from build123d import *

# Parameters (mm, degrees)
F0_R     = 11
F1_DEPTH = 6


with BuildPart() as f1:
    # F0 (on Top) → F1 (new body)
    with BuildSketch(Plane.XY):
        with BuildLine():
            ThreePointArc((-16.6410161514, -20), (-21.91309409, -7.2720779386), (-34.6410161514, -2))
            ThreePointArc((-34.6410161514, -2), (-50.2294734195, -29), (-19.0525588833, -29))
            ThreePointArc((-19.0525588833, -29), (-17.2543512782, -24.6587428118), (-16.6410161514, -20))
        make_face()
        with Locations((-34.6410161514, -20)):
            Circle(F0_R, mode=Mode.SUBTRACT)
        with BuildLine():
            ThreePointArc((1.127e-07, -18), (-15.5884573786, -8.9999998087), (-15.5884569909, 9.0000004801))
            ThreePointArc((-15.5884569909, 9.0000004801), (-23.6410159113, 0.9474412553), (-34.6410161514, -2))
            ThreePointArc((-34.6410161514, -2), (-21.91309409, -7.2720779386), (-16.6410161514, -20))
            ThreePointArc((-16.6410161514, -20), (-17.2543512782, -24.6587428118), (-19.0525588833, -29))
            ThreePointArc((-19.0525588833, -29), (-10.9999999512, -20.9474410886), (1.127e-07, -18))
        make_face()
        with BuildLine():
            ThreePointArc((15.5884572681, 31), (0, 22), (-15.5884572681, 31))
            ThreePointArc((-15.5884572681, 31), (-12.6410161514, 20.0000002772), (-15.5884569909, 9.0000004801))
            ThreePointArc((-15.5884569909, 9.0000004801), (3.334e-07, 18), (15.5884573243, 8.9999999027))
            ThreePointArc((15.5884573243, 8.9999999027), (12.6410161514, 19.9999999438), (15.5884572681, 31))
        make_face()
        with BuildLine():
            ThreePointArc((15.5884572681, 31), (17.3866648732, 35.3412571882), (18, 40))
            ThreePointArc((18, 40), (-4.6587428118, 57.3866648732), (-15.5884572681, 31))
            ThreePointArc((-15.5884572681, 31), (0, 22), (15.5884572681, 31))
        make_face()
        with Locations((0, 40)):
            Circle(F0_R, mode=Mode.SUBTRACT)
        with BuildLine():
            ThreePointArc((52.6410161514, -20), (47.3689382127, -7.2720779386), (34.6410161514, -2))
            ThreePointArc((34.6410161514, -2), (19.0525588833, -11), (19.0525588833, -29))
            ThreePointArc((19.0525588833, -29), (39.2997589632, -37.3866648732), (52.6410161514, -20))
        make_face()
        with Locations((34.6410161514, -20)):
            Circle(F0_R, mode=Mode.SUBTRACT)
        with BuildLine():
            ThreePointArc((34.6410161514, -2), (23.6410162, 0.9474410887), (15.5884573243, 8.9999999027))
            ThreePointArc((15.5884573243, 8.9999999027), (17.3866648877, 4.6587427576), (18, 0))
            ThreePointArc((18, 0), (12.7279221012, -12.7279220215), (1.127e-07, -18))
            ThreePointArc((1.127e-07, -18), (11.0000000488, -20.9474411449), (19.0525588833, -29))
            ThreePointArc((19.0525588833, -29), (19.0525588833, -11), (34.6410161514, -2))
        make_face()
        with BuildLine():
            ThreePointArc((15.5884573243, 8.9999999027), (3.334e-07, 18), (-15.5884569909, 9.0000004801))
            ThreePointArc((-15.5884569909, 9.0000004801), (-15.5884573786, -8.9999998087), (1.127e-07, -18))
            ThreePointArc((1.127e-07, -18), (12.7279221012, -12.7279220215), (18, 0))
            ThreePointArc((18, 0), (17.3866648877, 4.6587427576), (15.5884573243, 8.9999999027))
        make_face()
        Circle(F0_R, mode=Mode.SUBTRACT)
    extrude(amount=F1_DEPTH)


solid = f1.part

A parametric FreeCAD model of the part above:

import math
import FreeCAD as App
import Part
import Sketcher

doc = App.newDocument("Part")
body = doc.addObject("PartDesign::Body", "Body")

sketch1 = body.newObject("Sketcher::SketchObject", "Sketch")
sketch1.AttachmentSupport = (doc.getObject("XY_Plane"), [""])
sketch1.MapMode = "FlatFace"
sketch1.addGeometry(Part.ArcOfCircle(Part.Circle(App.Vector(-35, -20, 0), App.Vector(0, 0, 1), 18), math.radians(90), math.radians(330)), False)
sketch1.addGeometry(Part.ArcOfCircle(Part.Circle(App.Vector(0, -40, 0), App.Vector(0, 0, 1), 22), math.radians(90), math.radians(150)), False)
sketch1.addGeometry(Part.ArcOfCircle(Part.Circle(App.Vector(0, -40, 0), App.Vector(0, 0, 1), 22), math.radians(30), math.radians(90)), False)
sketch1.addGeometry(Part.ArcOfCircle(Part.Circle(App.Vector(35, -20, 0), App.Vector(0, 0, 1), 18), math.radians(-150), math.radians(0)), False)
sketch1.addGeometry(Part.ArcOfCircle(Part.Circle(App.Vector(35, -20, 0), App.Vector(0, 0, 1), 18), math.radians(0), math.radians(90)), False)
sketch1.addGeometry(Part.ArcOfCircle(Part.Circle(App.Vector(35, 20, 0), App.Vector(0, 0, 1), 22), math.radians(-150), math.radians(-90)), False)
sketch1.addGeometry(Part.ArcOfCircle(Part.Circle(App.Vector(35, 20, 0), App.Vector(0, 0, 1), 22), math.radians(150), math.radians(210)), False)
sketch1.addGeometry(Part.ArcOfCircle(Part.Circle(App.Vector(0, 40, 0), App.Vector(0, 0, 1), 18), math.radians(-30), math.radians(0)), False)
sketch1.addGeometry(Part.ArcOfCircle(Part.Circle(App.Vector(0, 40, 0), App.Vector(0, 0, 1), 18), math.radians(0), math.radians(210)), False)
sketch1.addGeometry(Part.ArcOfCircle(Part.Circle(App.Vector(-35, 20, 0), App.Vector(0, 0, 1), 22), math.radians(-30), math.radians(30)), False)
sketch1.addGeometry(Part.ArcOfCircle(Part.Circle(App.Vector(-35, 20, 0), App.Vector(0, 0, 1), 22), math.radians(-90), math.radians(-30)), False)
sketch1.addGeometry(Part.Circle(App.Vector(-35, -20, 0), App.Vector(0, 0, 1), 11), False)
sketch1.addGeometry(Part.Circle(App.Vector(0, 0, 0), App.Vector(0, 0, 1), 11), False)
sketch1.addGeometry(Part.Circle(App.Vector(35, -20, 0), App.Vector(0, 0, 1), 11), False)
sketch1.addGeometry(Part.Circle(App.Vector(0, 40, 0), App.Vector(0, 0, 1), 11), False)
sketch1.addConstraint(Sketcher.Constraint("Tangent", 0, 2, 1, 2))
sketch1.addConstraint(Sketcher.Constraint("Tangent", 1, 1, 2, 2))
sketch1.addConstraint(Sketcher.Constraint("Tangent", 2, 1, 3, 1))
sketch1.addConstraint(Sketcher.Constraint("Tangent", 3, 2, 4, 1))
sketch1.addConstraint(Sketcher.Constraint("Tangent", 4, 2, 5, 2))
sketch1.addConstraint(Sketcher.Constraint("Tangent", 5, 1, 6, 2))
sketch1.addConstraint(Sketcher.Constraint("Tangent", 6, 1, 7, 1))
sketch1.addConstraint(Sketcher.Constraint("Tangent", 7, 2, 8, 1))
sketch1.addConstraint(Sketcher.Constraint("Tangent", 8, 2, 9, 2))
sketch1.addConstraint(Sketcher.Constraint("Tangent", 9, 1, 10, 2))
sketch1.addConstraint(Sketcher.Constraint("Tangent", 10, 1, 0, 1))
sketch1.addConstraint(Sketcher.Constraint("Coincident", 12, 3, -1, 1))
sketch1.addConstraint(Sketcher.Constraint("Coincident", 11, 3, 0, 3))
sketch1.addConstraint(Sketcher.Constraint("Coincident", 13, 3, 3, 3))
sketch1.addConstraint(Sketcher.Constraint("Coincident", 14, 3, 7, 3))
sketch1.addConstraint(Sketcher.Constraint("Equal", 1, 2))
sketch1.addConstraint(Sketcher.Constraint("Equal", 0, 3))
sketch1.addConstraint(Sketcher.Constraint("Equal", 3, 4))
sketch1.addConstraint(Sketcher.Constraint("Equal", 2, 5))
sketch1.addConstraint(Sketcher.Constraint("Equal", 5, 6))
sketch1.addConstraint(Sketcher.Constraint("Equal", 4, 7))
sketch1.addConstraint(Sketcher.Constraint("Equal", 7, 8))
sketch1.addConstraint(Sketcher.Constraint("Equal", 6, 9))
sketch1.addConstraint(Sketcher.Constraint("Equal", 9, 10))
sketch1.addConstraint(Sketcher.Constraint("Equal", 11, 12))
sketch1.addConstraint(Sketcher.Constraint("Equal", 12, 13))
sketch1.addConstraint(Sketcher.Constraint("Equal", 13, 14))
sketch1.addConstraint(Sketcher.Constraint("Symmetric", 0, 3, 5, 3, -1, 1))
sketch1.addConstraint(Sketcher.Constraint("Symmetric", 0, 3, 3, 3, -2))
sketch1.addConstraint(Sketcher.Constraint("Symmetric", 5, 1, 9, 1, -2))
sketch1.addConstraint(Sketcher.Constraint("PointOnObject", 1, 1, -2))
sketch1.addConstraint(Sketcher.Constraint("Horizontal", 13, 3, 3, 2))
sketch1.addConstraint(Sketcher.Constraint("Horizontal", 14, 3, 7, 2))
sketch1.addConstraint(Sketcher.Constraint("Vertical", 5, 1, 6, 1))
sketch1.addConstraint(Sketcher.Constraint("Diameter", 11, 22.0))
sketch1.addConstraint(Sketcher.Constraint("Radius", 0, 18.0))
sketch1.addConstraint(Sketcher.Constraint("Radius", 1, 22.0))
sketch1.addConstraint(Sketcher.Constraint("DistanceY", 1, 3, -1, 1, 40.0))
pad1 = body.newObject("PartDesign::Pad", "Pad")
pad1.Profile = sketch1
pad1.Length = 6

doc.recompute()
